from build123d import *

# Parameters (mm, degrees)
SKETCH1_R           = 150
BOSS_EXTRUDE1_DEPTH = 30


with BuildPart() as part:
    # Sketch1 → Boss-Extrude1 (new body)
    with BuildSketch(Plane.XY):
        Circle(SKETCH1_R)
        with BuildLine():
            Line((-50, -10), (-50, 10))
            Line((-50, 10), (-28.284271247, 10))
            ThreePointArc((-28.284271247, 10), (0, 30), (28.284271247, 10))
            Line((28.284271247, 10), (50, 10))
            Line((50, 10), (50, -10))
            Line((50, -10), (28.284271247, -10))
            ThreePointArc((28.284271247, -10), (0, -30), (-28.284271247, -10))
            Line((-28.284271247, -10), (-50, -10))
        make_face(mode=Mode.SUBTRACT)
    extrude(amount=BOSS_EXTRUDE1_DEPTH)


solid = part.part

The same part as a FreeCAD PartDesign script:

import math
import FreeCAD as App
import Part
import Sketcher

V = App.Vector

doc = App.newDocument("Part")
body = doc.addObject("PartDesign::Body", "Body")

# Sketch on XY plane
sketch1 = doc.addObject("Sketcher::SketchObject", "Sketch")
body.addObject(sketch1)
sketch1.AttachmentSupport = (doc.XY_Plane, [""])
sketch1.MapMode = "FlatFace"
sketch1.addGeometry([
    Part.Circle(V(0, 0, 0), V(0, 0, 1), 150),  # 0
    Part.LineSegment(V(-28, -10, 0), V(-50, -10, 0)),  # 1
    Part.LineSegment(V(-50, -10, 0), V(-50, 10, 0)),  # 2
    Part.LineSegment(V(-50, 10, 0), V(-28, 10, 0)),  # 3
    Part.ArcOfCircle(Part.Circle(V(0, 0, 0), V(0, 0, 1), 30), math.radians(19), math.radians(161)),  # 4
    Part.LineSegment(V(28, 10, 0), V(50, 10, 0)),  # 5
    Part.LineSegment(V(50, 10, 0), V(50, -10, 0)),  # 6
    Part.LineSegment(V(50, -10, 0), V(28, -10, 0)),  # 7
    Part.ArcOfCircle(Part.Circle(V(0, 0, 0), V(0, 0, 1), 30), math.radians(-161), math.radians(-19)),  # 8
], False)
sketch1.addConstraint([
    Sketcher.Constraint("Coincident", 1, 2, 2, 1),
    Sketcher.Constraint("Coincident", 2, 2, 3, 1),
    Sketcher.Constraint("Coincident", 3, 2, 4, 2),
    Sketcher.Constraint("Coincident", 4, 1, 5, 1),
    Sketcher.Constraint("Coincident", 5, 2, 6, 1),
    Sketcher.Constraint("Coincident", 6, 2, 7, 1),
    Sketcher.Constraint("Coincident", 7, 2, 8, 2),
    Sketcher.Constraint("Coincident", 8, 1, 1, 1),
    Sketcher.Constraint("Horizontal", 1),
    Sketcher.Constraint("Vertical", 2),
    Sketcher.Constraint("Horizontal", 3),
    Sketcher.Constraint("Horizontal", 5),
    Sketcher.Constraint("Vertical", 6),
    Sketcher.Constraint("Horizontal", 7),
    Sketcher.Constraint("Coincident", 0, 3, -1, 1),
    Sketcher.Constraint("Coincident", 4, 3, -1, 1),
    Sketcher.Constraint("Coincident", 8, 3, -1, 1),
    Sketcher.Constraint("Equal", 4, 8),
    Sketcher.Constraint("Symmetric", 1, 2, 5, 2, -1, 1),
    Sketcher.Constraint("Horizontal", 3, 2, 4, 1),
    Sketcher.Constraint("Horizontal", 1, 2, 6, 2),
    Sketcher.Constraint("Diameter", 0, 300.0),
    Sketcher.Constraint("Radius", 4, 30.0),
    Sketcher.Constraint("DistanceY", 2, 1, 2, 2, 20.0),
    Sketcher.Constraint("DistanceX", 1, 2, -1, 1, 50.0),
])
pad1 = doc.addObject("PartDesign::Pad", "Pad")
body.addObject(pad1)
pad1.Profile = sketch1
pad1.Length = 30

doc.recompute()
